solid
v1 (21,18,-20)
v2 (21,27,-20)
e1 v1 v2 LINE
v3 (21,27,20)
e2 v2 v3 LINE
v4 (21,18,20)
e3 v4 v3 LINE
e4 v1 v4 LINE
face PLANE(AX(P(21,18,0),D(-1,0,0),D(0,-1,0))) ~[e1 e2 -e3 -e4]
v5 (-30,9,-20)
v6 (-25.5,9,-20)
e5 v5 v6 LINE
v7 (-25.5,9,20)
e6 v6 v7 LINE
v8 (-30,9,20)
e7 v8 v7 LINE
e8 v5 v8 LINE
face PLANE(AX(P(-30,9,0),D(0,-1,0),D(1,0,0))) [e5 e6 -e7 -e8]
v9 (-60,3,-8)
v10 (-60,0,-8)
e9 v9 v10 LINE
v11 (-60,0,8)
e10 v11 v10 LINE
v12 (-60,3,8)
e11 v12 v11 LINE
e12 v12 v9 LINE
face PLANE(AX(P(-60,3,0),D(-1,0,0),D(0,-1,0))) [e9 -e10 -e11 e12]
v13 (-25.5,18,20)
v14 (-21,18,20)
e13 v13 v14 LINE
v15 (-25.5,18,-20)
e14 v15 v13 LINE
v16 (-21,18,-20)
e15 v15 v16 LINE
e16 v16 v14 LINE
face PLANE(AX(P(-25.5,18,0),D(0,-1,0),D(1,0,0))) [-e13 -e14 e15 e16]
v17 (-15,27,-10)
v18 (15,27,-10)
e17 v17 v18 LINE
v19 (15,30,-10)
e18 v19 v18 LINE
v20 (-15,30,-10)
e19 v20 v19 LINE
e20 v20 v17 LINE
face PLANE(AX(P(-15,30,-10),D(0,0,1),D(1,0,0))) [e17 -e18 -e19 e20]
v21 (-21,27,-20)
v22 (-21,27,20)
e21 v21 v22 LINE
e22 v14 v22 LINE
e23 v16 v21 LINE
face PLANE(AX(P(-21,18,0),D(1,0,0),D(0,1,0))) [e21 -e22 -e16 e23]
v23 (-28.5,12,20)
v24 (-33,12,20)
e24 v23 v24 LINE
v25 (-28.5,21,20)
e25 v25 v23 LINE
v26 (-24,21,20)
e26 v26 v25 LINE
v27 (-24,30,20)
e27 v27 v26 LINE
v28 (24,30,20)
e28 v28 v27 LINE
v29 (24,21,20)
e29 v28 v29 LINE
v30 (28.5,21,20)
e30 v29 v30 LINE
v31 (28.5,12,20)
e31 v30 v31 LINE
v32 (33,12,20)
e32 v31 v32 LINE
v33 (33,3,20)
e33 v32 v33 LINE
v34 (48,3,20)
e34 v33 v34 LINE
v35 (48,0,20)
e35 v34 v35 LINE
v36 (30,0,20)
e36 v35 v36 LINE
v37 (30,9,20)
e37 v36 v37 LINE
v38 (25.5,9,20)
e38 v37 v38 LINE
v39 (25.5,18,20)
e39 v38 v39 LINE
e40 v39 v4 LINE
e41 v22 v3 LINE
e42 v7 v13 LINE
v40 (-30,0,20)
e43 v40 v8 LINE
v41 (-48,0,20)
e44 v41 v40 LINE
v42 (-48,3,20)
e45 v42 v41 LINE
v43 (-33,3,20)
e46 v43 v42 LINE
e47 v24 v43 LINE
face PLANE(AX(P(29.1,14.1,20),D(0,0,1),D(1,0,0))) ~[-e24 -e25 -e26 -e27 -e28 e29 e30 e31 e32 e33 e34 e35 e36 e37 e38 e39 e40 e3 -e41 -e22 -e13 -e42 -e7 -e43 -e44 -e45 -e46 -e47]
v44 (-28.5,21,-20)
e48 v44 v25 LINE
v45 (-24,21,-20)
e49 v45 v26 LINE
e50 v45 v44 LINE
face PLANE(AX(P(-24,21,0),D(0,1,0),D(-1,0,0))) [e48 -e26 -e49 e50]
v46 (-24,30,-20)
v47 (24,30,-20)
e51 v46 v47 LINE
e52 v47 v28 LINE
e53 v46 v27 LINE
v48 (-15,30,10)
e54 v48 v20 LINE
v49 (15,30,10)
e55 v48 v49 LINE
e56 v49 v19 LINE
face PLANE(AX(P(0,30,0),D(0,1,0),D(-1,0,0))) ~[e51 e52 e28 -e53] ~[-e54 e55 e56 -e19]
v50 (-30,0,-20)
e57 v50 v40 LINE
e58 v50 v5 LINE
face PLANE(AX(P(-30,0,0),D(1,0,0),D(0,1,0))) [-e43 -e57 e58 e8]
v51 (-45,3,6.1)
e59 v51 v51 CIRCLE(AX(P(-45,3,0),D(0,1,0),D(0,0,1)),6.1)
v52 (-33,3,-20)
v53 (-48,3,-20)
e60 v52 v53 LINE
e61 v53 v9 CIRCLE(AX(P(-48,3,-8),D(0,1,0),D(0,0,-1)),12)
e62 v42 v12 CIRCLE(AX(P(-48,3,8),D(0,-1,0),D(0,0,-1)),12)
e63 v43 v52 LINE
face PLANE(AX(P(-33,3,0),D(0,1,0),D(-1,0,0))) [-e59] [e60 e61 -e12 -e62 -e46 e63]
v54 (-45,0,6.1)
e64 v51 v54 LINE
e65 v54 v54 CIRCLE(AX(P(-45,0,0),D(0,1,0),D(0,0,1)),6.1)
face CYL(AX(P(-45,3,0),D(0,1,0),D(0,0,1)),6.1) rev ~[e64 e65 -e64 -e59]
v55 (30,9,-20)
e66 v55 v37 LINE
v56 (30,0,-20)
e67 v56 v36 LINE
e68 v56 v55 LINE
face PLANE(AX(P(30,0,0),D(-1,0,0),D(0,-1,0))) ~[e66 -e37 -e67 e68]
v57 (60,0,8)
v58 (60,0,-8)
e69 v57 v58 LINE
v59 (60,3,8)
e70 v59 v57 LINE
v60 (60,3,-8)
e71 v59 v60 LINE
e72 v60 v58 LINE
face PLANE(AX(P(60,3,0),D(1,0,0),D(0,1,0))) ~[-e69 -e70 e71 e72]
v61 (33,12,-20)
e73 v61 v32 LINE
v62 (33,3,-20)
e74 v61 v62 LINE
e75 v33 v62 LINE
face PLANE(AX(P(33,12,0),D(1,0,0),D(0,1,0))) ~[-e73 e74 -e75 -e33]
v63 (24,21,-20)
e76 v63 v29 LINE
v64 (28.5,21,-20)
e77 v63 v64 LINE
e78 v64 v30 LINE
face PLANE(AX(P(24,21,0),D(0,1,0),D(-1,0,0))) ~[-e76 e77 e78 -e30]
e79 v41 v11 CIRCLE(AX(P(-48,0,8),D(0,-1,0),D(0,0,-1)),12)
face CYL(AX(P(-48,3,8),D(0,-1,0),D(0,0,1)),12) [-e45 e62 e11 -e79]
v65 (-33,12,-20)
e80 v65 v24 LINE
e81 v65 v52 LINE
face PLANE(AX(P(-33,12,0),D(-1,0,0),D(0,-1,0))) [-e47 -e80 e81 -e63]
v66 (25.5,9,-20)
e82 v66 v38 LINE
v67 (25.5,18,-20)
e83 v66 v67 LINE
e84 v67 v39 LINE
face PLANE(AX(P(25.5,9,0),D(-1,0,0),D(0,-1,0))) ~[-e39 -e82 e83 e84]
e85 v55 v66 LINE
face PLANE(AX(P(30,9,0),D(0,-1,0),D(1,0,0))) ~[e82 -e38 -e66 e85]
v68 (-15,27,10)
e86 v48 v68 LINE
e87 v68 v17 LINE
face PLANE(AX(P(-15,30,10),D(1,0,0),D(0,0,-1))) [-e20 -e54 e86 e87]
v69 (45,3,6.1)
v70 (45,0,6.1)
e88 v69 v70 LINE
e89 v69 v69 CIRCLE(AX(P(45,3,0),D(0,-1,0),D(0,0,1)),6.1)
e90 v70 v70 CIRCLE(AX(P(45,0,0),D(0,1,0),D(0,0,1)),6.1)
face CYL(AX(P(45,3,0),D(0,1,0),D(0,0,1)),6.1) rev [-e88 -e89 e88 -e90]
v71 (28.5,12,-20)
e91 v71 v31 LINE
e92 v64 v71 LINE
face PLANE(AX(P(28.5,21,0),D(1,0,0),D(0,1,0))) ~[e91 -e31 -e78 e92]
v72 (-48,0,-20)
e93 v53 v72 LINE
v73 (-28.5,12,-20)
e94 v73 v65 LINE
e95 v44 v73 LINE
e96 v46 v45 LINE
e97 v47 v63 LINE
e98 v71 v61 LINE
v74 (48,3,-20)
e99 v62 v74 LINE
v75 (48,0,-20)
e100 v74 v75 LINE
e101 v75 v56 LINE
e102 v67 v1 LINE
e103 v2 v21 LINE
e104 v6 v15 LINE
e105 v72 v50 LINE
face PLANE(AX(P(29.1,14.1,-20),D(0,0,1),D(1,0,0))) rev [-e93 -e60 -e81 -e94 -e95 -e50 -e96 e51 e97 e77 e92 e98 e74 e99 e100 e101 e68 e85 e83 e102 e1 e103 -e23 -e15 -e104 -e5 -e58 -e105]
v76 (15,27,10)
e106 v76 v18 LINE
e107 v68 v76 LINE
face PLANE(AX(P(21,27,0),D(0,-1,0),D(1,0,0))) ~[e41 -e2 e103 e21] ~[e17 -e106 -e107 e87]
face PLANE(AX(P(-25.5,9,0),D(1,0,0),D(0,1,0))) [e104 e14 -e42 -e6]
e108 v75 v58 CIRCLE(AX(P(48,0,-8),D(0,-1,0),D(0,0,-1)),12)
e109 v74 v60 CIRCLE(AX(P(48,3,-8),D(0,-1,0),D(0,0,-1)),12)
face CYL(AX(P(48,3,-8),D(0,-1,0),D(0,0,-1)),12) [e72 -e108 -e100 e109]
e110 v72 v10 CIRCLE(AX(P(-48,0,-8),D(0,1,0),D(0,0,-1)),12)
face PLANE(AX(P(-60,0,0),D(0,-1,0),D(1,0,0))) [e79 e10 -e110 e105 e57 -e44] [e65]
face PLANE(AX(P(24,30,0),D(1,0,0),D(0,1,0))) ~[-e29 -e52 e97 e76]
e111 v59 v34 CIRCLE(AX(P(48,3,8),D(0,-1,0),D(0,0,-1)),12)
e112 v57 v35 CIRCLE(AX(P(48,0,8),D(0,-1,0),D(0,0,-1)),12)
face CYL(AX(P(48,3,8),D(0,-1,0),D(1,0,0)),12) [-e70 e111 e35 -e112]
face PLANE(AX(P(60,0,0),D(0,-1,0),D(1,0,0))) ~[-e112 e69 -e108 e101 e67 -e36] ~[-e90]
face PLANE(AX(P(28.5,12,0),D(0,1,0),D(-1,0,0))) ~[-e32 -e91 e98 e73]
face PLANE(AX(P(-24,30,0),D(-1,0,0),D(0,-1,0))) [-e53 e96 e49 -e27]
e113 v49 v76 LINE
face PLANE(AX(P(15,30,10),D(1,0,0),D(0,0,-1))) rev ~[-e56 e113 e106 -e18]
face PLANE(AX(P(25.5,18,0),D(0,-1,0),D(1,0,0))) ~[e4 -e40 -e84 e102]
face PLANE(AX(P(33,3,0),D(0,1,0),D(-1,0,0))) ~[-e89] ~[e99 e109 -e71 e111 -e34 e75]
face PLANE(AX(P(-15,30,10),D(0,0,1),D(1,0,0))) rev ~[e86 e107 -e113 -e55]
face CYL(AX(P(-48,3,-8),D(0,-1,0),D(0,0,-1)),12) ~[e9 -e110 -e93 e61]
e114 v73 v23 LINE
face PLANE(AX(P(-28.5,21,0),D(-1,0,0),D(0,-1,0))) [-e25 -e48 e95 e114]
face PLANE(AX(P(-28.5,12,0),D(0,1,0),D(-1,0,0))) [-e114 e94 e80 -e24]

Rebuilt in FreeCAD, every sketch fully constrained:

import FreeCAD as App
import Part
import Sketcher

V = App.Vector


def edges_at(feature, points):
    """Names of the edges that pass closest to the given points."""
    edges = feature.Shape.Edges
    near = lambda p: min(range(len(edges)), key=lambda i: edges[i].distToShape(Part.Vertex(*p))[0])
    return sorted({f"Edge{near(p) + 1}" for p in points})

doc = App.newDocument("Part")
body = doc.addObject("PartDesign::Body", "Body")

sketch1 = body.newObject("Sketcher::SketchObject", "Sketch")
sketch1.AttachmentSupport = (doc.getObject("XY_Plane"), [""])
sketch1.MapMode = "FlatFace"
sketch1.addGeometry(Part.LineSegment(V(-60, 0, 0), V(-30, 0, 0)), False)
sketch1.addGeometry(Part.LineSegment(V(-30, 0, 0), V(-30, 9, 0)), False)
sketch1.addGeometry(Part.LineSegment(V(-30, 9, 0), V(-25.5, 9, 0)), False)
sketch1.addGeometry(Part.LineSegment(V(-25.5, 9, 0), V(-25.5, 18, 0)), False)
sketch1.addGeometry(Part.LineSegment(V(-25.5, 18, 0), V(-21, 18, 0)), False)
sketch1.addGeometry(Part.LineSegment(V(-21, 18, 0), V(-21, 27, 0)), False)
sketch1.addGeometry(Part.LineSegment(V(-21, 27, 0), V(0, 27, 0)), False)
sketch1.addGeometry(Part.LineSegment(V(0, 27, 0), V(0, 30, 0)), False)
sketch1.addGeometry(Part.LineSegment(V(0, 30, 0), V(-24, 30, 0)), False)
sketch1.addGeometry(Part.LineSegment(V(-24, 30, 0), V(-24, 21, 0)), False)
sketch1.addGeometry(Part.LineSegment(V(-24, 21, 0), V(-28.5, 21, 0)), False)
sketch1.addGeometry(Part.LineSegment(V(-28.5, 21, 0), V(-28.5, 12, 0)), False)
sketch1.addGeometry(Part.LineSegment(V(-28.5, 12, 0), V(-33, 12, 0)), False)
sketch1.addGeometry(Part.LineSegment(V(-33, 12, 0), V(-33, 3, 0)), False)
sketch1.addGeometry(Part.LineSegment(V(-33, 3, 0), V(-60, 3, 0)), False)
sketch1.addGeometry(Part.LineSegment(V(-60, 3, 0), V(-60, 0, 0)), False)
sketch1.addConstraint(Sketcher.Constraint("Coincident", 0, 2, 1, 1))
sketch1.addConstraint(Sketcher.Constraint("Coincident", 1, 2, 2, 1))
sketch1.addConstraint(Sketcher.Constraint("Coincident", 2, 2, 3, 1))
sketch1.addConstraint(Sketcher.Constraint("Coincident", 3, 2, 4, 1))
sketch1.addConstraint(Sketcher.Constraint("Coincident", 4, 2, 5, 1))
sketch1.addConstraint(Sketcher.Constraint("Coincident", 5, 2, 6, 1))
sketch1.addConstraint(Sketcher.Constraint("Coincident", 6, 2, 7, 1))
sketch1.addConstraint(Sketcher.Constraint("Coincident", 7, 2, 8, 1))
sketch1.addConstraint(Sketcher.Constraint("Coincident", 8, 2, 9, 1))
sketch1.addConstraint(Sketcher.Constraint("Coincident", 9, 2, 10, 1))
sketch1.addConstraint(Sketcher.Constraint("Coincident", 10, 2, 11, 1))
sketch1.addConstraint(Sketcher.Constraint("Coincident", 11, 2, 12, 1))
sketch1.addConstraint(Sketcher.Constraint("Coincident", 12, 2, 13, 1))
sketch1.addConstraint(Sketcher.Constraint("Coincident", 13, 2, 14, 1))
sketch1.addConstraint(Sketcher.Constraint("Coincident", 14, 2, 15, 1))
sketch1.addConstraint(Sketcher.Constraint("Coincident", 15, 2, 0, 1))
sketch1.addConstraint(Sketcher.Constraint("Horizontal", 0))
sketch1.addConstraint(Sketcher.Constraint("Vertical", 1))
sketch1.addConstraint(Sketcher.Constraint("Horizontal", 2))
sketch1.addConstraint(Sketcher.Constraint("Vertical", 3))
sketch1.addConstraint(Sketcher.Constraint("Horizontal", 4))
sketch1.addConstraint(Sketcher.Constraint("Vertical", 5))
sketch1.addConstraint(Sketcher.Constraint("Horizontal", 6))
sketch1.addConstraint(Sketcher.Constraint("Vertical", 7))
sketch1.addConstraint(Sketcher.Constraint("Horizontal", 8))
sketch1.addConstraint(Sketcher.Constraint("Vertical", 9))
sketch1.addConstraint(Sketcher.Constraint("Horizontal", 10))
sketch1.addConstraint(Sketcher.Constraint("Vertical", 11))
sketch1.addConstraint(Sketcher.Constraint("Horizontal", 12))
sketch1.addConstraint(Sketcher.Constraint("Vertical", 13))
sketch1.addConstraint(Sketcher.Constraint("Horizontal", 14))
sketch1.addConstraint(Sketcher.Constraint("Vertical", 15))
sketch1.addConstraint(Sketcher.Constraint("PointOnObject", 0, 2, -1))
sketch1.addConstraint(Sketcher.Constraint("PointOnObject", 6, 2, -2))
sketch1.addConstraint(Sketcher.Constraint("Equal", 2, 4))
sketch1.addConstraint(Sketcher.Constraint("Equal", 4, 10))
sketch1.addConstraint(Sketcher.Constraint("Equal", 10, 12))
sketch1.addConstraint(Sketcher.Constraint("Equal", 1, 3))
sketch1.addConstraint(Sketcher.Constraint("Equal", 3, 5))
sketch1.addConstraint(Sketcher.Constraint("Equal", 5, 9))
sketch1.addConstraint(Sketcher.Constraint("Equal", 9, 11))
sketch1.addConstraint(Sketcher.Constraint("Equal", 11, 13))
sketch1.addConstraint(Sketcher.Constraint("DistanceX", 0, 1, 0, 2, 30.0))
sketch1.addConstraint(Sketcher.Constraint("DistanceX", 6, 1, 6, 2, 21.0))
sketch1.addConstraint(Sketcher.Constraint("DistanceX", 8, 2, 8, 1, 24.0))
sketch1.addConstraint(Sketcher.Constraint("DistanceY", 1, 1, 1, 2, 9.0))
sketch1.addConstraint(Sketcher.Constraint("DistanceY", 7, 1, 7, 2, 3.0))
sketch1.addConstraint(Sketcher.Constraint("DistanceX", 2, 1, 2, 2, 4.5))
pad1 = body.newObject("PartDesign::Pad", "Pad")
pad1.Profile = sketch1
pad1.Length = 40
pad1.Midplane = True
doc.recompute()

mirrored = body.newObject("PartDesign::Mirrored", "Mirrored")
mirrored.Originals = [pad1]
mirrored.MirrorPlane = (doc.getObject("YZ_Plane"), [""])
body.Tip = mirrored

sketch2 = body.newObject("Sketcher::SketchObject", "Sketch001")
sketch2.AttachmentSupport = (doc.getObject("XZ_Plane"), [""])
sketch2.MapMode = "FlatFace"
sketch2.AttachmentOffset = App.Placement(V(0, 0, -30), App.Rotation())
sketch2.addGeometry(Part.LineSegment(V(-15, -10, 0), V(-15, 10, 0)), False)
sketch2.addGeometry(Part.LineSegment(V(-15, 10, 0), V(15, 10, 0)), False)
sketch2.addGeometry(Part.LineSegment(V(15, 10, 0), V(15, -10, 0)), False)
sketch2.addGeometry(Part.LineSegment(V(15, -10, 0), V(-15, -10, 0)), False)
sketch2.addConstraint(Sketcher.Constraint("Coincident", 0, 2, 1, 1))
sketch2.addConstraint(Sketcher.Constraint("Coincident", 1, 2, 2, 1))
sketch2.addConstraint(Sketcher.Constraint("Coincident", 2, 2, 3, 1))
sketch2.addConstraint(Sketcher.Constraint("Coincident", 3, 2, 0, 1))
sketch2.addConstraint(Sketcher.Constraint("Vertical", 0))
sketch2.addConstraint(Sketcher.Constraint("Horizontal", 1))
sketch2.addConstraint(Sketcher.Constraint("Vertical", 2))
sketch2.addConstraint(Sketcher.Constraint("Horizontal", 3))
sketch2.addConstraint(Sketcher.Constraint("Symmetric", 0, 2, 2, 2, -1, 1))
sketch2.addConstraint(Sketcher.Constraint("DistanceX", 1, 1, 1, 2, 30.0))
sketch2.addConstraint(Sketcher.Constraint("DistanceY", 0, 1, 0, 2, 20.0))
pocket1 = body.newObject("PartDesign::Pocket", "Pocket")
pocket1.Profile = sketch2
pocket1.Type = "ThroughAll"
pocket1.Reversed = True

sketch3 = body.newObject("Sketcher::SketchObject", "Sketch002")
sketch3.AttachmentSupport = (doc.getObject("XZ_Plane"), [""])
sketch3.MapMode = "FlatFace"
sketch3.AttachmentOffset = App.Placement(V(0, 0, -3), App.Rotation())
sketch3.addGeometry(Part.Circle(V(-45, 0, 0), V(0, 0, 1), 6), False)
sketch3.addConstraint(Sketcher.Constraint("PointOnObject", 0, 3, -1))
sketch3.addConstraint(Sketcher.Constraint("Diameter", 0, 12.2))
sketch3.addConstraint(Sketcher.Constraint("DistanceX", 0, 3, -1, 1, 45.0))
pocket2 = body.newObject("PartDesign::Pocket", "Pocket001")
pocket2.Profile = sketch3
pocket2.Type = "ThroughAll"
pocket2.Reversed = True
doc.recompute()

mirrored2 = body.newObject("PartDesign::Mirrored", "Mirrored001")
mirrored2.Originals = [pocket2]
mirrored2.MirrorPlane = (doc.getObject("YZ_Plane"), [""])
body.Tip = mirrored2
doc.recompute()

fillet = body.newObject("PartDesign::Fillet", "Fillet")
fillet.Base = (mirrored2, edges_at(mirrored2, [
    (-60, 1.5, 20),
    (-60, 1.5, -20),
    (60, 1.5, -20),
    (60, 1.5, 20),
]))
fillet.Radius = 12

doc.recompute()
